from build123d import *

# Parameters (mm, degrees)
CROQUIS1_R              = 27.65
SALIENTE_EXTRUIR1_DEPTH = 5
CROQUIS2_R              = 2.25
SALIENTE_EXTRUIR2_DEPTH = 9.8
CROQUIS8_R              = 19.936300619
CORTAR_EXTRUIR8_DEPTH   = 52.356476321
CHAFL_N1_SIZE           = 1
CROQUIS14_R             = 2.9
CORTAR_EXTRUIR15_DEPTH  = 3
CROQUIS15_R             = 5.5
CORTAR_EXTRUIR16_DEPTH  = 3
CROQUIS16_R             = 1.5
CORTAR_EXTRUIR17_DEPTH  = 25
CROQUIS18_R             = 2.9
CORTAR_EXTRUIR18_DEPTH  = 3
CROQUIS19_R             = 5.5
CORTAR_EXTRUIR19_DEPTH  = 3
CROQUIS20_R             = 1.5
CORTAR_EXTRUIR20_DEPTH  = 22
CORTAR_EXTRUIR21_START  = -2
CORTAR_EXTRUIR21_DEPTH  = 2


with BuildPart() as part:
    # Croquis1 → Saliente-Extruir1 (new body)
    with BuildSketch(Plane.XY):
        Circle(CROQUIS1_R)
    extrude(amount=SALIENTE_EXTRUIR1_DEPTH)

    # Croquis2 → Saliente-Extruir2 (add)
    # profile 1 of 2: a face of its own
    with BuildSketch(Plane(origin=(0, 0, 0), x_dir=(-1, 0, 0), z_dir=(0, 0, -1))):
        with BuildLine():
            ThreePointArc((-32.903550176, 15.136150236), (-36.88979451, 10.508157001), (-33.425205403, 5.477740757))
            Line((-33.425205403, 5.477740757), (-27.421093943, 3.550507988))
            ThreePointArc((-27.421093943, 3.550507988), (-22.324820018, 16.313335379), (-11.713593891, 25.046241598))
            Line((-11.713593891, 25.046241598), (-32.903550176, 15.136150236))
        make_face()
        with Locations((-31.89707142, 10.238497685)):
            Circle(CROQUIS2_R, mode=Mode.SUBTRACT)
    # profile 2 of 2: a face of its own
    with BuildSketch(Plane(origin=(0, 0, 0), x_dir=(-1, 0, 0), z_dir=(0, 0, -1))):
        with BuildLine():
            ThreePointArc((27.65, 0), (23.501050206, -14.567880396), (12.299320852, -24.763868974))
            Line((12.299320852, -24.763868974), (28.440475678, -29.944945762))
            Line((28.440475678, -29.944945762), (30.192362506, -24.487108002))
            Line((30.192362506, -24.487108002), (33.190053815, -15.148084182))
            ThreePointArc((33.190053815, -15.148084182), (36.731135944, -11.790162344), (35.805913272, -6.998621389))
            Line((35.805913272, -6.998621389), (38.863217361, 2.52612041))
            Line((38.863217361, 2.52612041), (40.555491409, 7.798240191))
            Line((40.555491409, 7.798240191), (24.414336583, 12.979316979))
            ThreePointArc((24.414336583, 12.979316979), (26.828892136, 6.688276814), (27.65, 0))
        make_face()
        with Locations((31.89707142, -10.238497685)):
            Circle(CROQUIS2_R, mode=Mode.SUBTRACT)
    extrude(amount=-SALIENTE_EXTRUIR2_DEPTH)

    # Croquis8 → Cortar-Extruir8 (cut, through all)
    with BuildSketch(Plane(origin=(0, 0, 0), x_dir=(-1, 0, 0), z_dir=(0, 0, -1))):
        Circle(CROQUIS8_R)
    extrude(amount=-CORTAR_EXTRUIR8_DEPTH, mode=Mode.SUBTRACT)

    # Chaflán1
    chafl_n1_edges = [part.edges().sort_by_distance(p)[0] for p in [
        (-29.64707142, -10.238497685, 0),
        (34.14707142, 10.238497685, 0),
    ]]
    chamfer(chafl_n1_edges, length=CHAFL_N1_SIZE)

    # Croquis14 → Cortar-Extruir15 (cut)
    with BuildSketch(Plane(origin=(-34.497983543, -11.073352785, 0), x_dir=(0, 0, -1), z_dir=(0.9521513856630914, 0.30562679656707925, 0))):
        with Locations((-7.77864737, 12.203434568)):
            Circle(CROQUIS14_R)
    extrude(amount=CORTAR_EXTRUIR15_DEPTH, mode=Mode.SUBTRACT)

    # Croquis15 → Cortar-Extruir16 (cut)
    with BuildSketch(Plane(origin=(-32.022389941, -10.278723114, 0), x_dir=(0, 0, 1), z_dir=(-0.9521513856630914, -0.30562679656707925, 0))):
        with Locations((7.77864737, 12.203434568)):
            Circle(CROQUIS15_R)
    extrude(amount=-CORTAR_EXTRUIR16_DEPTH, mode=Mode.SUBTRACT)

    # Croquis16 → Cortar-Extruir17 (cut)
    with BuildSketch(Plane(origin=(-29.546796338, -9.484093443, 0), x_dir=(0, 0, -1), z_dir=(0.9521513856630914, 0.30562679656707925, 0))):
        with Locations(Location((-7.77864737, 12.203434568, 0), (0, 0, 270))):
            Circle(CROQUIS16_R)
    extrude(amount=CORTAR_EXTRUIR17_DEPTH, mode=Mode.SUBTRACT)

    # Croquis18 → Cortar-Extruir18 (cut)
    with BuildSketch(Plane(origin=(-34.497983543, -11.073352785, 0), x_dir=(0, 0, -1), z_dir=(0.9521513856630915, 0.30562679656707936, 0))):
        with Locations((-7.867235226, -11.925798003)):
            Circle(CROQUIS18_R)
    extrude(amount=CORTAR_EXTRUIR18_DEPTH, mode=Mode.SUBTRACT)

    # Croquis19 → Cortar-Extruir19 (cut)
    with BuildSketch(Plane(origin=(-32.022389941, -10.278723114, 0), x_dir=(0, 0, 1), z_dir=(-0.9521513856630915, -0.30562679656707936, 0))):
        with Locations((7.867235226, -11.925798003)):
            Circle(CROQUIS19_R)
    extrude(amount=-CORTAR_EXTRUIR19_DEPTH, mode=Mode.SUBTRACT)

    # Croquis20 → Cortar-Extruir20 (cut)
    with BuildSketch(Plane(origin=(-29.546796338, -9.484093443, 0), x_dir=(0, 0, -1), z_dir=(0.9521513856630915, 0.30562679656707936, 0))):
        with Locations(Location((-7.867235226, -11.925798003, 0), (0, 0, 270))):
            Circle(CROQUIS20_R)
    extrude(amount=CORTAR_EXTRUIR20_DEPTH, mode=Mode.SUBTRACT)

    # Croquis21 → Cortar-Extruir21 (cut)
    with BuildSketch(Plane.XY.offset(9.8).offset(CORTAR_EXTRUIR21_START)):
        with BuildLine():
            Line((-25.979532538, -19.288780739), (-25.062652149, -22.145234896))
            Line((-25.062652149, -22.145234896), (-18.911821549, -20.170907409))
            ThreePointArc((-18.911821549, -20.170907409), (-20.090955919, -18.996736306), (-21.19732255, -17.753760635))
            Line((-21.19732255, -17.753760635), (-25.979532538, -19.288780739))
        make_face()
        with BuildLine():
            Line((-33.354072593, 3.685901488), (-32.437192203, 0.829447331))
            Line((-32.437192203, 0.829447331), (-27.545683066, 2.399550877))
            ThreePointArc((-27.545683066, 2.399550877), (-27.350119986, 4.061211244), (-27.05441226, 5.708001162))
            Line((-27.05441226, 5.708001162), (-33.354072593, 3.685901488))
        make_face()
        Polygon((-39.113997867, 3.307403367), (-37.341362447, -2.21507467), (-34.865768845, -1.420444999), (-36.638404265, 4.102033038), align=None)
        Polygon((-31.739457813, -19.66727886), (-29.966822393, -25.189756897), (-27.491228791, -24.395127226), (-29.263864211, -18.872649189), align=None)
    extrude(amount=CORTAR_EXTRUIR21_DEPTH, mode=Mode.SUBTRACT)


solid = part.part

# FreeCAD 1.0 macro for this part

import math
import FreeCAD as App
import Part
import Sketcher

V = App.Vector
Q = App.Units.Quantity


def edges_at(feature, points):
    """Names of the edges that pass closest to the given points."""
    edges = feature.Shape.Edges
    near = lambda p: min(range(len(edges)), key=lambda i: edges[i].distToShape(Part.Vertex(*p))[0])
    return sorted({f"Edge{near(p) + 1}" for p in points})

doc = App.newDocument("Part")
body = doc.addObject("PartDesign::Body", "Body")

# Sketch on XY plane
sketch1 = body.newObject("Sketcher::SketchObject", "Sketch")
sketch1.AttachmentSupport = (doc.getObject("XY_Plane"), [""])
sketch1.MapMode = "FlatFace"
sketch1.addGeometry(Part.Circle(V(0, 0, 0), V(0, 0, 1), 28), False)
sketch1.addConstraint([
    Sketcher.Constraint("Coincident", 0, 3, -1, 1),
    Sketcher.Constraint("Diameter", 0, Q("55.3 mm")),
])
pad1 = body.newObject("PartDesign::Pad", "Pad")
pad1.Profile = sketch1
pad1.Length = 5

# Sketch on XY plane
sketch2 = body.newObject("Sketcher::SketchObject", "Sketch001")
sketch2.AttachmentSupport = (doc.getObject("XY_Plane"), [""])
sketch2.MapMode = "FlatFace"
sketch2.addGeometry([
    Part.ArcOfCircle(Part.Circle(V(31.897071, 10.238498, 0), V(0, 0, 1), 5), math.radians(-72.204123), math.radians(78.387259)),  # 0
    Part.LineSegment(V(33.425205, 5.477741, 0), V(27.421094, 3.550508, 0)),  # 1
    Part.ArcOfCircle(Part.Circle(V(0, 0, 0), V(0, 0, 1), 27.65), math.radians(7.377662), math.radians(64.935509)),  # 2
    Part.LineSegment(V(11.713594, 25.046242, 0), V(32.90355, 15.13615, 0)),  # 3
    Part.Circle(V(31.897071, 10.238498, 0), V(0, 0, 1), 2.25),  # 4
    Part.ArcOfCircle(Part.Circle(V(0, 0, 0), V(0, 0, 1), 27.65), math.radians(180), math.radians(243.588066)),  # 5
    Part.LineSegment(V(-12.299321, -24.763869, 0), V(-28.440476, -29.944946, 0)),  # 6
    Part.LineSegment(V(-28.440476, -29.944946, 0), V(-30.192363, -24.487108, 0)),  # 7
    Part.LineSegment(V(-30.192363, -24.487108, 0), V(-33.190054, -15.148084, 0)),  # 8
    Part.ArcOfCircle(Part.Circle(V(-31.897071, -10.238498, 0), V(0, 0, 1), 5.076992), math.radians(140.346078), math.radians(255.245677)),  # 9
    Part.LineSegment(V(-35.805913, -6.998621, 0), V(-38.863217, 2.52612, 0)),  # 10
    Part.LineSegment(V(-38.863217, 2.52612, 0), V(-40.555491, 7.79824, 0)),  # 11
    Part.LineSegment(V(-40.555491, 7.79824, 0), V(-24.414337, 12.979317, 0)),  # 12
    Part.ArcOfCircle(Part.Circle(V(0, 0, 0), V(0, 0, 1), 27.65), math.radians(152.003689), math.radians(180)),  # 13
    Part.Circle(V(-31.897071, -10.238498, 0), V(0, 0, 1), 2.25),  # 14
], False)
sketch2.addConstraint([
    Sketcher.Constraint("Coincident", 0, 1, 1, 1),
    Sketcher.Constraint("Coincident", 1, 2, 2, 1),
    Sketcher.Constraint("Coincident", 2, 2, 3, 1),
    Sketcher.Constraint("Coincident", 3, 2, 0, 2),
    Sketcher.Constraint("Coincident", 5, 2, 6, 1),
    Sketcher.Constraint("Coincident", 6, 2, 7, 1),
    Sketcher.Constraint("Coincident", 7, 2, 8, 1),
    Sketcher.Constraint("Coincident", 8, 2, 9, 2),
    Sketcher.Constraint("Coincident", 9, 1, 10, 1),
    Sketcher.Constraint("Coincident", 10, 2, 11, 1),
    Sketcher.Constraint("Coincident", 11, 2, 12, 1),
    Sketcher.Constraint("Coincident", 12, 2, 13, 1),
    Sketcher.Constraint("Coincident", 13, 2, 5, 1),
    Sketcher.Constraint("Coincident", 2, 3, -1, 1),
    Sketcher.Constraint("Coincident", 5, 3, -1, 1),
    Sketcher.Constraint("Coincident", 13, 3, -1, 1),
    Sketcher.Constraint("Coincident", 4, 3, 0, 3),
    Sketcher.Constraint("Coincident", 14, 3, 9, 3),
    Sketcher.Constraint("PointOnObject", 13, 2, -1),
    Sketcher.Constraint("Radius", 0, Q("5 mm")),
    Sketcher.Constraint("Diameter", 4, Q("4.5 mm")),
    Sketcher.Constraint("Diameter", 14, Q("4.5 mm")),
    Sketcher.Constraint("Radius", 2, Q("27.65 mm")),
    Sketcher.Constraint("Radius", 5, Q("27.65 mm")),
    Sketcher.Constraint("Radius", 9, Q("5.076992 mm")),
    Sketcher.Constraint("Distance", 6, Q("16.952299 mm")),
    Sketcher.Constraint("Distance", 12, Q("16.952299 mm")),
    Sketcher.Constraint("DistanceX", 2, 2, 1, 2, Q("15.7075 mm")),
    Sketcher.Constraint("Distance", 7, Q("5.732111 mm")),
    Sketcher.Constraint("Distance", 8, Q("9.808339 mm")),
    Sketcher.Constraint("Distance", 10, Q("10.00339 mm")),
    Sketcher.Constraint("Distance", 11, Q("5.53706 mm")),
    Sketcher.Constraint("DistanceX", -1, 1, 0, 3, Q("31.897071 mm")),
    Sketcher.Constraint("DistanceX", 9, 3, -1, 1, Q("31.897071 mm")),
    Sketcher.Constraint("DistanceY", -1, 1, 0, 1, Q("5.477741 mm")),
    Sketcher.Constraint("DistanceY", -1, 1, 2, 2, Q("25.046242 mm")),
    Sketcher.Constraint("DistanceX", -1, 1, 3, 2, Q("32.90355 mm")),
    Sketcher.Constraint("DistanceY", -1, 1, 3, 2, Q("15.13615 mm")),
    Sketcher.Constraint("DistanceX", 5, 2, -1, 1, Q("12.299321 mm")),
    Sketcher.Constraint("DistanceY", 7, 2, -1, 1, Q("24.487108 mm")),
    Sketcher.Constraint("DistanceY", 9, 1, -1, 1, Q("6.998621 mm")),
    Sketcher.Constraint("DistanceY", -1, 1, 10, 2, Q("2.52612 mm")),
    Sketcher.Constraint("DistanceX", 11, 2, -1, 1, Q("40.555491 mm")),
    Sketcher.Constraint("DistanceY", -1, 1, 11, 2, Q("7.79824 mm")),
    Sketcher.Constraint("DistanceY", 6, 2, 9, 3, Q("19.706448 mm")),
])
pad2 = body.newObject("PartDesign::Pad", "Pad001")
pad2.Profile = sketch2
pad2.Length = 9.8

# Sketch on XY plane
sketch3 = body.newObject("Sketcher::SketchObject", "Sketch002")
sketch3.AttachmentSupport = (doc.getObject("XY_Plane"), [""])
sketch3.MapMode = "FlatFace"
sketch3.addGeometry(Part.Circle(V(0, 0, 0), V(0, 0, 1), 20), False)
sketch3.addConstraint([
    Sketcher.Constraint("Coincident", 0, 3, -1, 1),
    Sketcher.Constraint("Diameter", 0, Q("39.872601 mm")),
])
pocket1 = body.newObject("PartDesign::Pocket", "Pocket")
pocket1.Profile = sketch3
pocket1.Type = "ThroughAll"
pocket1.Reversed = True
doc.recompute()

chamfer = body.newObject("PartDesign::Chamfer", "Chamfer")
chamfer.Base = (pocket1, edges_at(pocket1, [(-29.647, -10.238, 0), (34.147, 10.238, 0)]))
chamfer.Size = 1

# Sketch on an angled plane
sketch4 = body.newObject("Sketcher::SketchObject", "Sketch003")
sketch4.Placement = App.Placement(V(-34.497984, -11.073353, 0), App.Rotation(V(0, 0, -1), V(-0.305626797, 0.952151386, 0), V(0.952151386, 0.305626797, 0), "ZXY"))
sketch4.addGeometry(Part.Circle(V(-7.8, 12.2, 0), V(0, 0, 1), 2.9), False)
sketch4.addConstraint([
    Sketcher.Constraint("Diameter", 0, Q("5.8 mm")),
    Sketcher.Constraint("DistanceX", 0, 3, -1, 1, Q("7.778647 mm")),
    Sketcher.Constraint("DistanceY", -1, 1, 0, 3, Q("12.203435 mm")),
])
pocket2 = body.newObject("PartDesign::Pocket", "Pocket001")
pocket2.Profile = sketch4
pocket2.Length = 3
pocket2.Reversed = True

# Sketch on an angled plane
sketch5 = body.newObject("Sketcher::SketchObject", "Sketch004")
sketch5.Placement = App.Placement(V(-32.02239, -10.278723, 0), App.Rotation(V(0, 0, 1), V(-0.305626797, 0.952151386, 0), V(-0.952151386, -0.305626797, 0), "ZXY"))
sketch5.addGeometry(Part.Circle(V(8, 12, 0), V(0, 0, 1), 6), False)
sketch5.addConstraint([
    Sketcher.Constraint("Diameter", 0, Q("11 mm")),
    Sketcher.Constraint("DistanceX", -1, 1, 0, 3, Q("7.778647 mm")),
    Sketcher.Constraint("DistanceY", -1, 1, 0, 3, Q("12.203435 mm")),
])
pocket3 = body.newObject("PartDesign::Pocket", "Pocket002")
pocket3.Profile = sketch5
pocket3.Length = 3

# Sketch on an angled plane
sketch6 = body.newObject("Sketcher::SketchObject", "Sketch005")
sketch6.Placement = App.Placement(V(-29.546796, -9.484093, 0), App.Rotation(V(0, 0, -1), V(-0.305626797, 0.952151386, 0), V(0.952151386, 0.305626797, 0), "ZXY"))
sketch6.addGeometry(Part.Circle(V(-7.8, 12.2, 0), V(0, 0, 1), 1.5), False)
sketch6.addConstraint([
    Sketcher.Constraint("Diameter", 0, Q("3 mm")),
    Sketcher.Constraint("DistanceX", 0, 3, -1, 1, Q("7.778647 mm")),
    Sketcher.Constraint("DistanceY", -1, 1, 0, 3, Q("12.203435 mm")),
])
pocket4 = body.newObject("PartDesign::Pocket", "Pocket003")
pocket4.Profile = sketch6
pocket4.Length = 25
pocket4.Reversed = True

# Sketch on an angled plane
sketch7 = body.newObject("Sketcher::SketchObject", "Sketch006")
sketch7.Placement = App.Placement(V(-34.497984, -11.073353, 0), App.Rotation(V(0, 0, -1), V(-0.305626797, 0.952151386, 0), V(0.952151386, 0.305626797, 0), "ZXY"))
sketch7.addGeometry(Part.Circle(V(-7.9, -11.9, 0), V(0, 0, 1), 2.9), False)
sketch7.addConstraint([
    Sketcher.Constraint("Diameter", 0, Q("5.8 mm")),
    Sketcher.Constraint("DistanceY", 0, 3, -1, 1, Q("11.925798 mm")),
    Sketcher.Constraint("DistanceX", 0, 3, -1, 1, Q("7.867235 mm")),
])
pocket5 = body.newObject("PartDesign::Pocket", "Pocket004")
pocket5.Profile = sketch7
pocket5.Length = 3
pocket5.Reversed = True

# Sketch on an angled plane
sketch8 = body.newObject("Sketcher::SketchObject", "Sketch007")
sketch8.Placement = App.Placement(V(-32.02239, -10.278723, 0), App.Rotation(V(0, 0, 1), V(-0.305626797, 0.952151386, 0), V(-0.952151386, -0.305626797, 0), "ZXY"))
sketch8.addGeometry(Part.Circle(V(8, -12, 0), V(0, 0, 1), 6), False)
sketch8.addConstraint([
    Sketcher.Constraint("Diameter", 0, Q("11 mm")),
    Sketcher.Constraint("DistanceY", 0, 3, -1, 1, Q("11.925798 mm")),
    Sketcher.Constraint("DistanceX", -1, 1, 0, 3, Q("7.867235 mm")),
])
pocket6 = body.newObject("PartDesign::Pocket", "Pocket005")
pocket6.Profile = sketch8
pocket6.Length = 3

# Sketch on an angled plane
sketch9 = body.newObject("Sketcher::SketchObject", "Sketch008")
sketch9.Placement = App.Placement(V(-29.546796, -9.484093, 0), App.Rotation(V(0, 0, -1), V(-0.305626797, 0.952151386, 0), V(0.952151386, 0.305626797, 0), "ZXY"))
sketch9.addGeometry(Part.Circle(V(-7.9, -11.9, 0), V(0, 0, 1), 1.5), False)
sketch9.addConstraint([
    Sketcher.Constraint("Diameter", 0, Q("3 mm")),
    Sketcher.Constraint("DistanceY", 0, 3, -1, 1, Q("11.925798 mm")),
    Sketcher.Constraint("DistanceX", 0, 3, -1, 1, Q("7.867235 mm")),
])
pocket7 = body.newObject("PartDesign::Pocket", "Pocket006")
pocket7.Profile = sketch9
pocket7.Length = 22
pocket7.Reversed = True

# Sketch on XY plane
sketch10 = body.newObject("Sketcher::SketchObject", "Sketch009")
sketch10.AttachmentSupport = (doc.getObject("XY_Plane"), [""])
sketch10.MapMode = "FlatFace"
sketch10.AttachmentOffset = App.Placement(V(0, 0, 7.8), App.Rotation())
sketch10.addGeometry([
    Part.LineSegment(V(-26, -19.3, 0), V(-25.1, -22.1, 0)),  # 0
    Part.LineSegment(V(-25.1, -22.1, 0), V(-18.9, -20.2, 0)),  # 1
    Part.ArcOfCircle(Part.Circle(V(0, 0, 0), V(0, 0, 1), 27.6), math.radians(-140.05), math.radians(-133.15)),  # 2
    Part.LineSegment(V(-21.2, -17.8, 0), V(-26, -19.3, 0)),  # 3
    Part.LineSegment(V(-33.4, 3.7, 0), V(-32.4, 0.8, 0)),  # 4
    Part.LineSegment(V(-32.4, 0.8, 0), V(-27.5, 2.4, 0)),  # 5
    Part.ArcOfCircle(Part.Circle(V(0, 0, 0), V(0, 0, 1), 27.6), math.radians(168.09), math.radians(175.02)),  # 6
    Part.LineSegment(V(-27.1, 5.7, 0), V(-33.4, 3.7, 0)),  # 7
    Part.LineSegment(V(-39.1, 3.3, 0), V(-37.3, -2.2, 0)),  # 8
    Part.LineSegment(V(-37.3, -2.2, 0), V(-34.9, -1.4, 0)),  # 9
    Part.LineSegment(V(-34.9, -1.4, 0), V(-36.6, 4.1, 0)),  # 10
    Part.LineSegment(V(-36.6, 4.1, 0), V(-39.1, 3.3, 0)),  # 11
    Part.LineSegment(V(-31.7, -19.7, 0), V(-30, -25.2, 0)),  # 12
    Part.LineSegment(V(-30, -25.2, 0), V(-27.5, -24.4, 0)),  # 13
    Part.LineSegment(V(-27.5, -24.4, 0), V(-29.3, -18.9, 0)),  # 14
    Part.LineSegment(V(-29.3, -18.9, 0), V(-31.7, -19.7, 0)),  # 15
], False)
sketch10.addConstraint([
    Sketcher.Constraint("Coincident", 0, 2, 1, 1),
    Sketcher.Constraint("Coincident", 1, 2, 2, 2),
    Sketcher.Constraint("Coincident", 2, 1, 3, 1),
    Sketcher.Constraint("Coincident", 3, 2, 0, 1),
    Sketcher.Constraint("Coincident", 4, 2, 5, 1),
    Sketcher.Constraint("Coincident", 5, 2, 6, 2),
    Sketcher.Constraint("Coincident", 6, 1, 7, 1),
    Sketcher.Constraint("Coincident", 7, 2, 4, 1),
    Sketcher.Constraint("Coincident", 8, 2, 9, 1),
    Sketcher.Constraint("Coincident", 9, 2, 10, 1),
    Sketcher.Constraint("Coincident", 10, 2, 11, 1),
    Sketcher.Constraint("Coincident", 11, 2, 8, 1),
    Sketcher.Constraint("Coincident", 12, 2, 13, 1),
    Sketcher.Constraint("Coincident", 13, 2, 14, 1),
    Sketcher.Constraint("Coincident", 14, 2, 15, 1),
    Sketcher.Constraint("Coincident", 15, 2, 12, 1),
    Sketcher.Constraint("Coincident", 2, 3, -1, 1),
    Sketcher.Constraint("Coincident", 6, 3, -1, 1),
    Sketcher.Constraint("Equal", 2, 6),
    Sketcher.Constraint("Perpendicular", 0, 1),
    Sketcher.Constraint("Parallel", 1, 3),
    Sketcher.Constraint("Perpendicular", 3, 4),
    Sketcher.Constraint("Perpendicular", 4, 5),
    Sketcher.Constraint("Parallel", 5, 7),
    Sketcher.Constraint("Perpendicular", 7, 8),
    Sketcher.Constraint("Perpendicular", 8, 9),
    Sketcher.Constraint("Perpendicular", 9, 10),
    Sketcher.Constraint("Perpendicular", 10, 11),
    Sketcher.Constraint("Perpendicular", 11, 12),
    Sketcher.Constraint("Perpendicular", 12, 13),
    Sketcher.Constraint("Perpendicular", 13, 14),
    Sketcher.Constraint("Perpendicular", 14, 15),
    Sketcher.Constraint("Equal", 0, 4),
    Sketcher.Constraint("Equal", 10, 12),
    Sketcher.Constraint("Equal", 11, 13),
    Sketcher.Constraint("Radius", 2, Q("27.65 mm")),
    Sketcher.Constraint("Distance", 0, Q("3 mm")),
    Sketcher.Constraint("Distance", 8, Q("5.8 mm")),
    Sketcher.Constraint("Distance", 9, Q("2.6 mm")),
    Sketcher.Constraint("DistanceY", -1, 1, 6, 1, Q("5.708001 mm")),
    Sketcher.Constraint("DistanceX", 12, 2, 1, 2, Q("11.055001 mm")),
    Sketcher.Constraint("DistanceY", -1, 1, 7, 2, Q("3.685901 mm")),
    Sketcher.Constraint("DistanceX", 2, 1, 1, 2, Q("2.285501 mm")),
    Sketcher.Constraint("DistanceY", 11, 2, 7, 2, Q("0.378498 mm")),
    Sketcher.Constraint("DistanceY", 15, 2, 3, 2, Q("0.378498 mm")),
    Sketcher.Constraint("Distance", 1, Q("6.459929 mm")),
    Sketcher.Constraint("Distance", 3, Q("5.022531 mm")),
    Sketcher.Constraint("DistanceX", 9, 2, -1, 1, Q("34.865769 mm")),
])
pocket8 = body.newObject("PartDesign::Pocket", "Pocket007")
pocket8.Profile = sketch10
pocket8.Length = 2
pocket8.Reversed = True

doc.recompute()
